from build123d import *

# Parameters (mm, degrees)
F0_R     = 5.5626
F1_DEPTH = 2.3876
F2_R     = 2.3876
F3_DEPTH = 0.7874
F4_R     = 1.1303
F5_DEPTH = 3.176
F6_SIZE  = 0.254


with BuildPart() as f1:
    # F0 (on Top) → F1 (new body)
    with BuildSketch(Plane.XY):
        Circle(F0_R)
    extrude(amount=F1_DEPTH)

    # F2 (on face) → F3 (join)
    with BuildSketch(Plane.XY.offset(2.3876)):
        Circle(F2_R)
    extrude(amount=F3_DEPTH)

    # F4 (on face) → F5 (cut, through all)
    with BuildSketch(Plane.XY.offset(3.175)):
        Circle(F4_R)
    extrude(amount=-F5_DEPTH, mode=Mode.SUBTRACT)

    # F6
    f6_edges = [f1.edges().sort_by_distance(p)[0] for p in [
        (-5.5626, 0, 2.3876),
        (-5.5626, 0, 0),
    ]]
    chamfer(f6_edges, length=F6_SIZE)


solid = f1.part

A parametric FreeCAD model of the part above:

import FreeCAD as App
import Part
import Sketcher
from FreeCAD import Vector
Q = App.Units.Quantity


def edges_at(feature, points):
    """Names of the edges that pass closest to the given points."""
    edges = feature.Shape.Edges
    near = lambda p: min(range(len(edges)), key=lambda i: edges[i].distToShape(Part.Vertex(*p))[0])
    return sorted({f"Edge{near(p) + 1}" for p in points})

doc = App.newDocument("Part")
body = doc.addObject("PartDesign::Body", "Body")

# Sketch on XY plane
sketch1 = doc.addObject("Sketcher::SketchObject", "Sketch")
body.addObject(sketch1)
sketch1.AttachmentSupport = (doc.XY_Plane, [""])
sketch1.MapMode = "FlatFace"
sketch1.addGeometry(Part.Circle(Vector(0, 0, 0), Vector(0, 0, 1), 5.5626), False)
sketch1.addConstraint(Sketcher.Constraint("Coincident", 0, 3, -1, 1))
sketch1.addConstraint(Sketcher.Constraint("Diameter", 0, Q("0.438 in")))
pad1 = doc.addObject("PartDesign::Pad", "Pad")
body.addObject(pad1)
pad1.Profile = sketch1
pad1.Length = Q("0.094 in")

# Sketch on XY plane
sketch2 = doc.addObject("Sketcher::SketchObject", "Sketch001")
body.addObject(sketch2)
sketch2.AttachmentSupport = (doc.XY_Plane, [""])
sketch2.MapMode = "FlatFace"
sketch2.AttachmentOffset = App.Placement(Vector(0, 0, 0.094 * 25.4), App.Rotation())
sketch2.addGeometry(Part.Circle(Vector(0, 0, 0), Vector(0, 0, 1), 2.3876), False)
sketch2.addConstraint(Sketcher.Constraint("Coincident", 0, 3, -1, 1))
sketch2.addConstraint(Sketcher.Constraint("Diameter", 0, Q("0.188 in")))
pad2 = doc.addObject("PartDesign::Pad", "Pad001")
body.addObject(pad2)
pad2.Profile = sketch2
pad2.Length = Q("0.031 in")

# Sketch on XY plane
sketch3 = doc.addObject("Sketcher::SketchObject", "Sketch002")
body.addObject(sketch3)
sketch3.AttachmentSupport = (doc.XY_Plane, [""])
sketch3.MapMode = "FlatFace"
sketch3.AttachmentOffset = App.Placement(Vector(0, 0, 0.125 * 25.4), App.Rotation())
sketch3.addGeometry(Part.Circle(Vector(0, 0, 0), Vector(0, 0, 1), 1.1303), False)
sketch3.addConstraint(Sketcher.Constraint("Coincident", 0, 3, -1, 1))
sketch3.addConstraint(Sketcher.Constraint("Diameter", 0, Q("0.089 in")))
pocket1 = doc.addObject("PartDesign::Pocket", "Pocket")
body.addObject(pocket1)
pocket1.Profile = sketch3
pocket1.Type = "ThroughAll"
doc.recompute()

chamfer = doc.addObject("PartDesign::Chamfer", "Chamfer")
body.addObject(chamfer)
chamfer.Base = (pocket1, edges_at(pocket1, [(-5.563, 0, 2.388), (-5.563, 0, 0)]))
chamfer.Size = Q("0.01 in")

doc.recompute()
